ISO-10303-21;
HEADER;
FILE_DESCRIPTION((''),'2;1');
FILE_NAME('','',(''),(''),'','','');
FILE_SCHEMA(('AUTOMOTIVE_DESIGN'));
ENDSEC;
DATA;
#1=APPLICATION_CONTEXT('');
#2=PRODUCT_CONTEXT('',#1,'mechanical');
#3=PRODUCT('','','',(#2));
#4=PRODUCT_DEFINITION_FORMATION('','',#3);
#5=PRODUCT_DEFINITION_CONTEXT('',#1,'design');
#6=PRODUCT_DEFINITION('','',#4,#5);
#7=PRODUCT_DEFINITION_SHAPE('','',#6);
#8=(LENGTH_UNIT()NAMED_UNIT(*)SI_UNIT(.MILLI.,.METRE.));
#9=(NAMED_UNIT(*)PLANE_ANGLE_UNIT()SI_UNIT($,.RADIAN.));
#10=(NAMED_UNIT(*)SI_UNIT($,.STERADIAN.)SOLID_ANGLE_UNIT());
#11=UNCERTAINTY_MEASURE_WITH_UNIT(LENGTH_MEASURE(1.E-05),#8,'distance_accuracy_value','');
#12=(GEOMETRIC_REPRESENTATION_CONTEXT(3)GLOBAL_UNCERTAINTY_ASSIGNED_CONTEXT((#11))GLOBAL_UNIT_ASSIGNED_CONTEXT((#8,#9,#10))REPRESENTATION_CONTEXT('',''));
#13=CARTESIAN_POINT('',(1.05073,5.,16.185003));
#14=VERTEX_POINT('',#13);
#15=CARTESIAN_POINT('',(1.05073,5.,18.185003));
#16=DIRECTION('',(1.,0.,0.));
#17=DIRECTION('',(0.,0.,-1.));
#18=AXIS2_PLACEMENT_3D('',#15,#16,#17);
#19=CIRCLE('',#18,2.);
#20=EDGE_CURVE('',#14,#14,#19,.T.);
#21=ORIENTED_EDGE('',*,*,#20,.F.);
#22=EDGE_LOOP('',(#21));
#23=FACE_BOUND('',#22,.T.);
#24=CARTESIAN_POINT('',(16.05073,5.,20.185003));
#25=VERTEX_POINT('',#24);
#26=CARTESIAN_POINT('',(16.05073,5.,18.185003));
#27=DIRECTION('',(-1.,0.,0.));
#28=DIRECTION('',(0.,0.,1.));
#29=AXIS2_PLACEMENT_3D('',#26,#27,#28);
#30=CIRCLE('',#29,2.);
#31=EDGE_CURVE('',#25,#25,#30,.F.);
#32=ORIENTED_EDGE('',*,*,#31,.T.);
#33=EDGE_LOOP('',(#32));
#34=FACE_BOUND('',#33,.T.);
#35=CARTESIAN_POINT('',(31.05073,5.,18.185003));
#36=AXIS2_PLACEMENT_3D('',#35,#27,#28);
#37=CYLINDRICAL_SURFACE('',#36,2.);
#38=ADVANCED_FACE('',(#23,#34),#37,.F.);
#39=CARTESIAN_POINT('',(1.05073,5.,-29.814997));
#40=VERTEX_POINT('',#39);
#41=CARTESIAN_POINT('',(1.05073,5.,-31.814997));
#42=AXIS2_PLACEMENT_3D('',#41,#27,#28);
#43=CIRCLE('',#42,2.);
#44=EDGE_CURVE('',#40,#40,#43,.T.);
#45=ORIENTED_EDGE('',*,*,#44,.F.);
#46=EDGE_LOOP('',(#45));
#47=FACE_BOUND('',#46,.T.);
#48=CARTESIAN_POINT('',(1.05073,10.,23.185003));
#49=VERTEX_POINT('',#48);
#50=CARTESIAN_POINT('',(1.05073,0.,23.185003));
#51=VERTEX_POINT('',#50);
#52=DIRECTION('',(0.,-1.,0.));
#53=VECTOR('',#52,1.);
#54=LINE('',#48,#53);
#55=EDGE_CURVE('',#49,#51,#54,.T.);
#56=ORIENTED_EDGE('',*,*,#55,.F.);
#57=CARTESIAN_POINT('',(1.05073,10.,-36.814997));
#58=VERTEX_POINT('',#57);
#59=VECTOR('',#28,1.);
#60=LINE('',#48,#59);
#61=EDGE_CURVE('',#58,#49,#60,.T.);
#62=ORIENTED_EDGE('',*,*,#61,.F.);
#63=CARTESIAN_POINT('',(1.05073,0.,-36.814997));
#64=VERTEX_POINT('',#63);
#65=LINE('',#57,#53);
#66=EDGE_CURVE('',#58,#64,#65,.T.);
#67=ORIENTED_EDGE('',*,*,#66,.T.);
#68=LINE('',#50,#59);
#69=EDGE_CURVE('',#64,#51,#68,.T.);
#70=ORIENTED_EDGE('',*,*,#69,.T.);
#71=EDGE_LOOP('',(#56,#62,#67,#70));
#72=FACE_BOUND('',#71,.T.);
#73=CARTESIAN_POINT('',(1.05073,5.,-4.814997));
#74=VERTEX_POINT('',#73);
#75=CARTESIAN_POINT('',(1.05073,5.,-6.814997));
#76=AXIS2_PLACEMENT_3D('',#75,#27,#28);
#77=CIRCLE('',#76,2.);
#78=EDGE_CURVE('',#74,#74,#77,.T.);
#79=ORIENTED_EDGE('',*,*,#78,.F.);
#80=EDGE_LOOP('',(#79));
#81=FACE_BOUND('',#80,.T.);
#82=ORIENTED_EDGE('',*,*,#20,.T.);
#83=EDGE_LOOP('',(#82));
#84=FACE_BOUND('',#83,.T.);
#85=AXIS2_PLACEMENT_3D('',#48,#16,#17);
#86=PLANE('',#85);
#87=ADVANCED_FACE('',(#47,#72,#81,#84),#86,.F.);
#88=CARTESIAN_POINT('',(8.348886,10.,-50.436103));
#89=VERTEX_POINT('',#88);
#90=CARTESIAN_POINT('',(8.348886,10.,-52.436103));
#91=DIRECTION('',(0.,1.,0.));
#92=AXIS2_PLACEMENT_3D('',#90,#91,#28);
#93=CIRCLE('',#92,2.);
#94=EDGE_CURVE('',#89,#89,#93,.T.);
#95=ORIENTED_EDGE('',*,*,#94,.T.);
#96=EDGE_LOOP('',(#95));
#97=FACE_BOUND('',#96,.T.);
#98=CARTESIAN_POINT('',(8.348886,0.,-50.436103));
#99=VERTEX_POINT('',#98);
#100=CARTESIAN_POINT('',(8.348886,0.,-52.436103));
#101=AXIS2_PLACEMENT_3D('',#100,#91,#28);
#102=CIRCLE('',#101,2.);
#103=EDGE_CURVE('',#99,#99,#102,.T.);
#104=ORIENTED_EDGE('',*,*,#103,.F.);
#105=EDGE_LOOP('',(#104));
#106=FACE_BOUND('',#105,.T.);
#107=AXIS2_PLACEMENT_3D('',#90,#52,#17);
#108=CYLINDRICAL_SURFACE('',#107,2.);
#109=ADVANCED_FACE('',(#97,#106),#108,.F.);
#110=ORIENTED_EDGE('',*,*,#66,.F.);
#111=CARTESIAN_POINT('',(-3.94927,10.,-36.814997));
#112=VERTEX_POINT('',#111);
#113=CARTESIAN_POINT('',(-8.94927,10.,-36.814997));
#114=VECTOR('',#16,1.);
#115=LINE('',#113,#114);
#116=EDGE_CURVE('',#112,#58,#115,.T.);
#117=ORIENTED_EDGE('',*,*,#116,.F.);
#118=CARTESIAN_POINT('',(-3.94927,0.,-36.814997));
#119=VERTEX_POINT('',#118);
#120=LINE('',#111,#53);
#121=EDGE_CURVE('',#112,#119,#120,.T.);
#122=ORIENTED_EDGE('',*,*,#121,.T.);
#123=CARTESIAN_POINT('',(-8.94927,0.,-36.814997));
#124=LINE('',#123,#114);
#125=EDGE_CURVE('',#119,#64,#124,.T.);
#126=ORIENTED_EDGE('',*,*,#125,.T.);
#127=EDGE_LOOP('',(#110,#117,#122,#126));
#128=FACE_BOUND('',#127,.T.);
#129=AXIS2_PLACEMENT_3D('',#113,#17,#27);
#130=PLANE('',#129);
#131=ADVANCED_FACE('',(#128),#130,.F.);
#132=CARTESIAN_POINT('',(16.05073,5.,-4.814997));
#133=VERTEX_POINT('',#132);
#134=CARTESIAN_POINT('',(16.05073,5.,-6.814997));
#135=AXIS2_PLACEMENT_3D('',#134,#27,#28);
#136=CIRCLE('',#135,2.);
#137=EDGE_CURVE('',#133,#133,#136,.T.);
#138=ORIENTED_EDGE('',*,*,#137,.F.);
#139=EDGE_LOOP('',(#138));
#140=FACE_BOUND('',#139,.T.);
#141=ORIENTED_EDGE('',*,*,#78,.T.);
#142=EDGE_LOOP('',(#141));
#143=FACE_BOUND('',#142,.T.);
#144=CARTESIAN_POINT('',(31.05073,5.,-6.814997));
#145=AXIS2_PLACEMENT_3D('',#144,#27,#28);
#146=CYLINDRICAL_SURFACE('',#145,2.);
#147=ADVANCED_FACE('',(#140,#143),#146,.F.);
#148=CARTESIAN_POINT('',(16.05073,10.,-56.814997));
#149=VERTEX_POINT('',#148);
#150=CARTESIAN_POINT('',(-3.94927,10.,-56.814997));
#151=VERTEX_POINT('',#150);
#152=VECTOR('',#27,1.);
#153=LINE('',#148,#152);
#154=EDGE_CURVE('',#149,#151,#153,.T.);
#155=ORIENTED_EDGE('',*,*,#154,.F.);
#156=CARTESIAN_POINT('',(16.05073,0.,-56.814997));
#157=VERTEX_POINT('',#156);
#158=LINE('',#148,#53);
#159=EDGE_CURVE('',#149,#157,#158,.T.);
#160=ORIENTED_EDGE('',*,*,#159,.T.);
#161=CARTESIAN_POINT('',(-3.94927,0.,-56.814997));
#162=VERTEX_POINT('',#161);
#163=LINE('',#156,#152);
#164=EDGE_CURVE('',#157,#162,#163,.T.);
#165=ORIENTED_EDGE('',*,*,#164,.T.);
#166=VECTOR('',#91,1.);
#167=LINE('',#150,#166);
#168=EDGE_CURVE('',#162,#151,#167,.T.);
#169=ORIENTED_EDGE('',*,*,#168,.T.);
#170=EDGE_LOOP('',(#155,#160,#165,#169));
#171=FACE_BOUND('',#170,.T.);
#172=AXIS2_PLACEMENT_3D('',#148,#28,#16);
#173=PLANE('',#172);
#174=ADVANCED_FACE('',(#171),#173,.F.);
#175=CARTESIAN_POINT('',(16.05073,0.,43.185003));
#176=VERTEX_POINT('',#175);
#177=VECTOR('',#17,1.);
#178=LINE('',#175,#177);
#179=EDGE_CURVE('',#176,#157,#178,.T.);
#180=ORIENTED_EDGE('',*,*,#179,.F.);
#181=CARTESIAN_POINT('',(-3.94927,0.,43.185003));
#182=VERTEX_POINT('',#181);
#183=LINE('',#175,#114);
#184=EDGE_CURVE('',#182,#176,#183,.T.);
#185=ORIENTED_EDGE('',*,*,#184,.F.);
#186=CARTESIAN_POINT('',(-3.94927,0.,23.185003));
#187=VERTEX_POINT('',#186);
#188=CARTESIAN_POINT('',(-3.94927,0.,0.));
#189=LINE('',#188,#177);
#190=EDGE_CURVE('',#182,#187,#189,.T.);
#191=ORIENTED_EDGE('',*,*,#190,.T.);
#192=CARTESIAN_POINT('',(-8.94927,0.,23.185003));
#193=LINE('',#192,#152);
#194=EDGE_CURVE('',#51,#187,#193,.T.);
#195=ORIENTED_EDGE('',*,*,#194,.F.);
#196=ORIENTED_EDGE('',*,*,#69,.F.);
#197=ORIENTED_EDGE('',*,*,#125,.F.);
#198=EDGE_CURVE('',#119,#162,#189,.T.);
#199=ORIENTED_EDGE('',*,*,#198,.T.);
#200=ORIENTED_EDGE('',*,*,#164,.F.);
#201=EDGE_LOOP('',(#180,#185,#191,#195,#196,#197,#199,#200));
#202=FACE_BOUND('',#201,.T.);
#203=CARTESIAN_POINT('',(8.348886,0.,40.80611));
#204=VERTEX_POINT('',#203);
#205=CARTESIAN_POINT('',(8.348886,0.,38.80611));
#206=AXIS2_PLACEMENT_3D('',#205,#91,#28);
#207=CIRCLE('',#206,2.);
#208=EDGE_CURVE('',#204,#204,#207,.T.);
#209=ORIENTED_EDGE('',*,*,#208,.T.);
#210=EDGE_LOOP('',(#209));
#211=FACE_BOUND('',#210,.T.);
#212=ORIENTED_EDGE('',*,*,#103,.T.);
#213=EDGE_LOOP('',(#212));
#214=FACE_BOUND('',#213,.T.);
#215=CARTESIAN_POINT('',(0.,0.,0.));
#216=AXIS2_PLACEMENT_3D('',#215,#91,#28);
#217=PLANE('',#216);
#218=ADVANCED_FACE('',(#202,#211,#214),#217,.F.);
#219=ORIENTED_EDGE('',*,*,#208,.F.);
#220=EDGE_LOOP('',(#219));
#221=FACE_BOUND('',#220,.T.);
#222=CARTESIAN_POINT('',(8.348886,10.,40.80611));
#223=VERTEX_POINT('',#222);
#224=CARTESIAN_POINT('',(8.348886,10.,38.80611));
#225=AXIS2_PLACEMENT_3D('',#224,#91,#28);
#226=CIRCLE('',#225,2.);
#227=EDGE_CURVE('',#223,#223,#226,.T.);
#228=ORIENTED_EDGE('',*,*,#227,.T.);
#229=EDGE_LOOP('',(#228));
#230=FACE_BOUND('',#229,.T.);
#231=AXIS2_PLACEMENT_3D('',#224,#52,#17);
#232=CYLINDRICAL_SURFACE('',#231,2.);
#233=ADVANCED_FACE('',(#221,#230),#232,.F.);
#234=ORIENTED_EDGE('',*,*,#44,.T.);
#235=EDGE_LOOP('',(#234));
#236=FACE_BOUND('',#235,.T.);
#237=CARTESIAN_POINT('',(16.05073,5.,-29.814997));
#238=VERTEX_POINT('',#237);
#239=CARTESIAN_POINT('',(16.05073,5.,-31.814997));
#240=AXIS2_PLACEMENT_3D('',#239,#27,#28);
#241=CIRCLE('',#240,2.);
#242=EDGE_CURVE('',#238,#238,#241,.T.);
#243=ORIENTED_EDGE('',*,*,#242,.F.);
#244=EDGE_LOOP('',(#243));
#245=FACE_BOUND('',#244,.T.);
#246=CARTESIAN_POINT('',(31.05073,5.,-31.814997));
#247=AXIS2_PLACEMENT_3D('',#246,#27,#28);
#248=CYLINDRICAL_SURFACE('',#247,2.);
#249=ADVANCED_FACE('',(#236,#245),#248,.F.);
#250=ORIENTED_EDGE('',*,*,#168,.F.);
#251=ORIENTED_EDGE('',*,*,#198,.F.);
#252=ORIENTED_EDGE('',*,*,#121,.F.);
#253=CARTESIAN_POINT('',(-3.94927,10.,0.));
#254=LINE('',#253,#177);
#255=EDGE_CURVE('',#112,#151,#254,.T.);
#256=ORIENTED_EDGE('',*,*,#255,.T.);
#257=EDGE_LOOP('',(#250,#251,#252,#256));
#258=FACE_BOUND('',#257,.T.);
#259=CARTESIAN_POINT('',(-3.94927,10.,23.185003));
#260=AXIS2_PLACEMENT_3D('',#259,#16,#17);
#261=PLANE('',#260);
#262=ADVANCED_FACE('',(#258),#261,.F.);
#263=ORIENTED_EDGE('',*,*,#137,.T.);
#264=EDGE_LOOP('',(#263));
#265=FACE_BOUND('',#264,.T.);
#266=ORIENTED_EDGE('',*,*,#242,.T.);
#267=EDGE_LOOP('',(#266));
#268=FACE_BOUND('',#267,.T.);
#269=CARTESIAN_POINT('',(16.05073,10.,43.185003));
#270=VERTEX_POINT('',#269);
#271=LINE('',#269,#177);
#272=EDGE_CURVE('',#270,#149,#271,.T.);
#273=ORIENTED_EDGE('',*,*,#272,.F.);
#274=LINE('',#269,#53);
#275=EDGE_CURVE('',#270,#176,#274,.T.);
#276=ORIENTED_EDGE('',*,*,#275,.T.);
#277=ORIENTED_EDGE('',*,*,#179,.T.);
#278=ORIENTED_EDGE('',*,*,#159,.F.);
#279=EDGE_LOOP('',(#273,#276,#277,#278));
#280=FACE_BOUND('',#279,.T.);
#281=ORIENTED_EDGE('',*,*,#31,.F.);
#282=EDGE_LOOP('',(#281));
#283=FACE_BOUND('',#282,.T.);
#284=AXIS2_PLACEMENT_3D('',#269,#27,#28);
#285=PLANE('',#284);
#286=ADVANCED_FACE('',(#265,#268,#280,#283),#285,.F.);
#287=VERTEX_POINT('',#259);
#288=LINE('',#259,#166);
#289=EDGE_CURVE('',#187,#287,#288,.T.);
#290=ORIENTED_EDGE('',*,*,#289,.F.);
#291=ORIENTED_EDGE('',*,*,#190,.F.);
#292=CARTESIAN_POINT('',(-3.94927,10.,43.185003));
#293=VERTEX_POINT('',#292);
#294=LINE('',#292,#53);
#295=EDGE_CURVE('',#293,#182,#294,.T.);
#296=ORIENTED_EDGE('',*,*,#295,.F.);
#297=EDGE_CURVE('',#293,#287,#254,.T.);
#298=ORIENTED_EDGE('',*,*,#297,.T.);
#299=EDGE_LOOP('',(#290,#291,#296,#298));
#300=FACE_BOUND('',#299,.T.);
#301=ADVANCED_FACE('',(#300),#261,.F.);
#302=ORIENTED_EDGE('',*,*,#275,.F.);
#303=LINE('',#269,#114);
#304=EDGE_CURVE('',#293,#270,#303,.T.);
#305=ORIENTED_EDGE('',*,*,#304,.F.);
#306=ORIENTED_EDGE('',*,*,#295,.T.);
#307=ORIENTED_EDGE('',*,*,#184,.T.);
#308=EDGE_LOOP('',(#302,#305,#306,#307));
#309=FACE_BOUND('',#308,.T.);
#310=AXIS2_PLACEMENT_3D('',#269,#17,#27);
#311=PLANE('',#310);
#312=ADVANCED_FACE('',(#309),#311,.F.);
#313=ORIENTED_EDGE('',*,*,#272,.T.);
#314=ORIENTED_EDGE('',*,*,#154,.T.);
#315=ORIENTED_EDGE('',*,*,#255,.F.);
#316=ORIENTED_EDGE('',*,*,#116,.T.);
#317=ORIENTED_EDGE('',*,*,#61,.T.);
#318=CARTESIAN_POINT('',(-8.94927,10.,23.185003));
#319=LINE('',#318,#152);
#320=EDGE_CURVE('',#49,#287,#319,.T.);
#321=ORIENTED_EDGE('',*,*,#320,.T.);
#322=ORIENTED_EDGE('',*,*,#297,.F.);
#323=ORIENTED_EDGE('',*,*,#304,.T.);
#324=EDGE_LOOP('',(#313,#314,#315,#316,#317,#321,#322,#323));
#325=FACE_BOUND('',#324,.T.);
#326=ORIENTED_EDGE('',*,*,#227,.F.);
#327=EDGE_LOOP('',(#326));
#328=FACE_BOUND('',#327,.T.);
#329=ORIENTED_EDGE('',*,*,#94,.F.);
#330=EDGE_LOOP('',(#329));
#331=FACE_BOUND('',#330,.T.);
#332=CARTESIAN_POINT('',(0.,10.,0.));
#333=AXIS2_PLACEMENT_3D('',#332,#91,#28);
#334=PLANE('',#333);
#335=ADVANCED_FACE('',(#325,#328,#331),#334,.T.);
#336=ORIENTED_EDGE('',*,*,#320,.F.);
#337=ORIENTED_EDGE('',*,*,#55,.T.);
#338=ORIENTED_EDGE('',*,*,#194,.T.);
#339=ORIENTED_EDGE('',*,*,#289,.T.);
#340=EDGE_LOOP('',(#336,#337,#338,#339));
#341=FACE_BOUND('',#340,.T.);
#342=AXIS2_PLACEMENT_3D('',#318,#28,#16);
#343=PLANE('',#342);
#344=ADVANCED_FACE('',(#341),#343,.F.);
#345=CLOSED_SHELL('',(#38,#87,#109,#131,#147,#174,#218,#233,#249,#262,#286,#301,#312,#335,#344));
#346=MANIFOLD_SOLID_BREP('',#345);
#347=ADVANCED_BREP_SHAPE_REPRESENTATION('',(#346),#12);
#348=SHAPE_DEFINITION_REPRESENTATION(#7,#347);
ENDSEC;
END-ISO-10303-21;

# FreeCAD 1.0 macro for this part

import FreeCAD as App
import Part
import Sketcher

V = App.Vector


def add_polygon(sketch, points):
    """Adds a closed chain of lines whose ends are joined by coincident constraints."""
    first, n = sketch.GeometryCount, len(points)
    for a, b in zip(points, points[1:] + points[:1]):
        sketch.addGeometry(Part.LineSegment(App.Vector(*a, 0), App.Vector(*b, 0)), False)
    for i in range(n):
        sketch.addConstraint(Sketcher.Constraint("Coincident", first + i, 2, first + (i + 1) % n, 1))

doc = App.newDocument("Part")
params = doc.addObject("Spreadsheet::Sheet", "Params")
for row, (alias, value) in enumerate([
    ("sketch1_diameter", "4 mm"),
    ("sketch1_width", "25 mm"),
    ("sketch1_width2", "10 mm"),
    ("sketch1_height", "20 mm"),
    ("sketch1_height2", "60 mm"),
    ("pad1_length", "10 mm"),
    ("sketch2_diameter", "4 mm"),
    ("pocket1_length", "30 mm"),
    ("pocket2_length", "5 mm"),
], start=1):
    params.set(f"A{row}", alias)
    params.set(f"B{row}", "=" + value)
    params.setAlias(f"B{row}", alias)

body = doc.addObject("PartDesign::Body", "Body")

# Sketch on XZ plane
sketch1 = doc.addObject("Sketcher::SketchObject", "Sketch")
body.addObject(sketch1)
sketch1.AttachmentSupport = (doc.XZ_Plane, [""])
sketch1.MapMode = "FlatFace"
add_polygon(sketch1, [(16.1, -56.8), (-8.9, -56.8), (-8.9, -36.8), (1.1, -36.8), (1.1, 23.2), (-8.9, 23.2), (-8.9, 43.2), (16.1, 43.2)])  # lines 0-7
sketch1.addGeometry(Part.Circle(V(8.3, 38.8, 0), V(0, 0, 1), 2), False)  # 8
sketch1.addGeometry(Part.Circle(V(8.3, -52.4, 0), V(0, 0, 1), 2), False)  # 9
sketch1.addConstraint([
    Sketcher.Constraint("Horizontal", 0),
    Sketcher.Constraint("Vertical", 1),
    Sketcher.Constraint("Horizontal", 2),
    Sketcher.Constraint("Vertical", 3),
    Sketcher.Constraint("Horizontal", 4),
    Sketcher.Constraint("Vertical", 5),
    Sketcher.Constraint("Horizontal", 6),
    Sketcher.Constraint("Vertical", 7),
    Sketcher.Constraint("Equal", 8, 9),
    Sketcher.Constraint("Vertical", 8, 3, 9, 3),
    Sketcher.Constraint("Vertical", 1, 2, 4, 2),
    Sketcher.Constraint("Equal", 1, 5),
    Sketcher.Constraint("Diameter", 8, 4.0),
    Sketcher.Constraint("DistanceX", 0, 2, 0, 1, 25.0),
    Sketcher.Constraint("DistanceX", 2, 1, 2, 2, 10.0),
    Sketcher.Constraint("DistanceY", 1, 1, 1, 2, 20.0),
    Sketcher.Constraint("DistanceY", 3, 1, 3, 2, 60.0),
    Sketcher.Constraint("DistanceY", -1, 1, 8, 3, 38.80611),
    Sketcher.Constraint("DistanceX", 0, 2, -1, 1, 8.94927),
    Sketcher.Constraint("DistanceX", -1, 1, 8, 3, 8.348886),
    Sketcher.Constraint("DistanceY", 9, 3, -1, 1, 52.436103),
    Sketcher.Constraint("DistanceY", 0, 2, -1, 1, 56.814997),
])
sketch1.setExpression("Constraints[20]", "Params.sketch1_diameter")
sketch1.setExpression("Constraints[21]", "Params.sketch1_width")
sketch1.setExpression("Constraints[22]", "Params.sketch1_width2")
sketch1.setExpression("Constraints[23]", "Params.sketch1_height")
sketch1.setExpression("Constraints[24]", "Params.sketch1_height2")
pad1 = doc.addObject("PartDesign::Pad", "Pad")
body.addObject(pad1)
pad1.Profile = sketch1
pad1.setExpression("Length", "Params.pad1_length")
pad1.Reversed = True

# Sketch on YZ plane
sketch2 = doc.addObject("Sketcher::SketchObject", "Sketch001")
body.addObject(sketch2)
sketch2.AttachmentSupport = (doc.YZ_Plane, [""])
sketch2.MapMode = "FlatFace"
sketch2.AttachmentOffset = App.Placement(V(0, 0, 1.05073), App.Rotation())
sketch2.addGeometry([
    Part.Circle(V(5, -31.8, 0), V(0, 0, 1), 2),
    Part.Circle(V(5, 18.2, 0), V(0, 0, 1), 2),
    Part.Circle(V(5, -6.8, 0), V(0, 0, 1), 2),
], False)
sketch2.addConstraint([
    Sketcher.Constraint("Equal", 0, 1),
    Sketcher.Constraint("Equal", 1, 2),
    Sketcher.Constraint("Vertical", 0, 3, 1, 3),
    Sketcher.Constraint("Vertical", 1, 3, 2, 3),
    Sketcher.Constraint("Diameter", 0, 4.0),
    Sketcher.Constraint("DistanceX", -1, 1, 0, 3, 5.0),
    Sketcher.Constraint("DistanceY", 0, 3, 1, 3, 50.0),
    Sketcher.Constraint("DistanceY", 0, 3, 2, 3, 25.0),
    Sketcher.Constraint("DistanceY", 0, 3, -1, 1, 31.814997),
])
sketch2.setExpression("Constraints[4]", "Params.sketch2_diameter")
pocket1 = doc.addObject("PartDesign::Pocket", "Pocket")
body.addObject(pocket1)
pocket1.Profile = sketch2
pocket1.setExpression("Length", "Params.pocket1_length")
pocket1.Reversed = True

# Sketch on YZ plane
sketch3 = doc.addObject("Sketcher::SketchObject", "Sketch002")
body.addObject(sketch3)
sketch3.AttachmentSupport = (doc.YZ_Plane, [""])
sketch3.MapMode = "FlatFace"
sketch3.AttachmentOffset = App.Placement(V(0, 0, -8.94927), App.Rotation())
add_polygon(sketch3, [(38, -82), (-23, -82), (-23, 65), (38, 65)])  # lines 0-3
sketch3.addConstraint([
    Sketcher.Constraint("Horizontal", 0),
    Sketcher.Constraint("Vertical", 1),
    Sketcher.Constraint("Horizontal", 2),
    Sketcher.Constraint("Vertical", 3),
    Sketcher.Constraint("DistanceY", -1, 1, 1, 2, 65.0659),
    Sketcher.Constraint("DistanceX", 0, 2, 0, 1, 61.375716),
    Sketcher.Constraint("DistanceY", 1, 1, 1, 2, 147.072516),
    Sketcher.Constraint("DistanceX", -1, 1, 2, 2, 38.489239),
])
pocket2 = doc.addObject("PartDesign::Pocket", "Pocket001")
body.addObject(pocket2)
pocket2.Profile = sketch3
pocket2.setExpression("Length", "Params.pocket2_length")
pocket2.Reversed = True

doc.recompute()
